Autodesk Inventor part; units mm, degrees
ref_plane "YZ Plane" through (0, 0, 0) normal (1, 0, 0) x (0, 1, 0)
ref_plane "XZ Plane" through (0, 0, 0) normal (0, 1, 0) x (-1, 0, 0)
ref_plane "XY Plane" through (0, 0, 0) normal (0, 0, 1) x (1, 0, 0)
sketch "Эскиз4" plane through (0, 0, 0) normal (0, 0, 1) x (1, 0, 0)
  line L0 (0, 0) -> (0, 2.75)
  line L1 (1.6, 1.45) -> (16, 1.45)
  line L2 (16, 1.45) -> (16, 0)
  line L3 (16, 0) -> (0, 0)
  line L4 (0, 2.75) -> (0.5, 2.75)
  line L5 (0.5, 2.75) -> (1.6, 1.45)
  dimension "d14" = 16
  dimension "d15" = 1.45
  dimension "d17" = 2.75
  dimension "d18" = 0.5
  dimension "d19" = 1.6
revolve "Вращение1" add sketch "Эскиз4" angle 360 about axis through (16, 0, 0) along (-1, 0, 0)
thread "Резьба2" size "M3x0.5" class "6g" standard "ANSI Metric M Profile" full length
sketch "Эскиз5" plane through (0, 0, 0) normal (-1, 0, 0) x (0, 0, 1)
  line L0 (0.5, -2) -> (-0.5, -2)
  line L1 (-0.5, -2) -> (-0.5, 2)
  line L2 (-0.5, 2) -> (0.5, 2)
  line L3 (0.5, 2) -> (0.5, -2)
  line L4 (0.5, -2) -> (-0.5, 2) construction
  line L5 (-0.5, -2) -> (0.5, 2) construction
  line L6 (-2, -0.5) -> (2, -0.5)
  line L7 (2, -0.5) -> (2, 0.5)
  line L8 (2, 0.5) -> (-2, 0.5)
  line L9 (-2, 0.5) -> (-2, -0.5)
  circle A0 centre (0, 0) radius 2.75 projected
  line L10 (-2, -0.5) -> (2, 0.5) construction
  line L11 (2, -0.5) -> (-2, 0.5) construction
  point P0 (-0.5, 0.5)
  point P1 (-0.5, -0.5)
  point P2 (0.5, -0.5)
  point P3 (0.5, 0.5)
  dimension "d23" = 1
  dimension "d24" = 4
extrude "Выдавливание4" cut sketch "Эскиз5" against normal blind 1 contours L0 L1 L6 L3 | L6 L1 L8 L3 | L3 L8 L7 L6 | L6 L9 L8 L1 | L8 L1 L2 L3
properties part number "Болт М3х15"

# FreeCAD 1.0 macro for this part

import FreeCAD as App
import Part
import Sketcher

doc = App.newDocument("Part")
body = doc.addObject("PartDesign::Body", "Body")

# Sketch on XY plane
sketch1 = body.newObject("Sketcher::SketchObject", "Sketch")
sketch1.AttachmentSupport = (doc.getObject("XY_Plane"), [""])
sketch1.MapMode = "FlatFace"
sketch1.addGeometry([
    Part.LineSegment(App.Vector(0, 2.8, 0), App.Vector(0, 0, 0)),  # 0
    Part.LineSegment(App.Vector(0, 0, 0), App.Vector(16, 0, 0)),  # 1
    Part.LineSegment(App.Vector(16, 0, 0), App.Vector(16, 1.4, 0)),  # 2
    Part.LineSegment(App.Vector(16, 1.4, 0), App.Vector(1.6, 1.4, 0)),  # 3
    Part.LineSegment(App.Vector(1.6, 1.4, 0), App.Vector(0.5, 2.8, 0)),  # 4
    Part.LineSegment(App.Vector(0.5, 2.8, 0), App.Vector(0, 2.8, 0)),  # 5
], False)
sketch1.addConstraint([
    Sketcher.Constraint("Coincident", 0, 2, 1, 1),
    Sketcher.Constraint("Coincident", 1, 2, 2, 1),
    Sketcher.Constraint("Coincident", 2, 2, 3, 1),
    Sketcher.Constraint("Coincident", 3, 2, 4, 1),
    Sketcher.Constraint("Coincident", 4, 2, 5, 1),
    Sketcher.Constraint("Coincident", 5, 2, 0, 1),
    Sketcher.Constraint("Vertical", 0),
    Sketcher.Constraint("Horizontal", 1),
    Sketcher.Constraint("Vertical", 2),
    Sketcher.Constraint("Horizontal", 3),
    Sketcher.Constraint("Horizontal", 5),
    Sketcher.Constraint("Coincident", 0, 2, -1, 1),
    Sketcher.Constraint("DistanceX", 1, 1, 1, 2, 16.0),
    Sketcher.Constraint("DistanceX", 5, 2, 5, 1, 0.5),
    Sketcher.Constraint("DistanceY", 0, 2, 0, 1, 2.75),
    Sketcher.Constraint("DistanceY", 2, 1, 2, 2, 1.45),
    Sketcher.Constraint("DistanceX", -1, 1, 3, 2, 1.6),
])
revolution = body.newObject("PartDesign::Revolution", "Revolution")
revolution.Profile = sketch1
revolution.ReferenceAxis = (sketch1, ["H_Axis"])
revolution.Angle = 360

# Sketch on YZ plane
sketch2 = body.newObject("Sketcher::SketchObject", "Sketch001")
sketch2.AttachmentSupport = (doc.getObject("YZ_Plane"), [""])
sketch2.MapMode = "FlatFace"
sketch2.addGeometry([
    Part.LineSegment(App.Vector(-2, -0.5, 0), App.Vector(-2, 0.5, 0)),  # 0
    Part.LineSegment(App.Vector(-2, 0.5, 0), App.Vector(-0.5, 0.5, 0)),  # 1
    Part.LineSegment(App.Vector(-0.5, 0.5, 0), App.Vector(-0.5, 2, 0)),  # 2
    Part.LineSegment(App.Vector(-0.5, 2, 0), App.Vector(0.5, 2, 0)),  # 3
    Part.LineSegment(App.Vector(0.5, 2, 0), App.Vector(0.5, 0.5, 0)),  # 4
    Part.LineSegment(App.Vector(0.5, 0.5, 0), App.Vector(2, 0.5, 0)),  # 5
    Part.LineSegment(App.Vector(2, 0.5, 0), App.Vector(2, -0.5, 0)),  # 6
    Part.LineSegment(App.Vector(2, -0.5, 0), App.Vector(0.5, -0.5, 0)),  # 7
    Part.LineSegment(App.Vector(0.5, -0.5, 0), App.Vector(0.5, -2, 0)),  # 8
    Part.LineSegment(App.Vector(0.5, -2, 0), App.Vector(-0.5, -2, 0)),  # 9
    Part.LineSegment(App.Vector(-0.5, -2, 0), App.Vector(-0.5, -0.5, 0)),  # 10
    Part.LineSegment(App.Vector(-0.5, -0.5, 0), App.Vector(-2, -0.5, 0)),  # 11
], False)
sketch2.addConstraint([
    Sketcher.Constraint("Coincident", 0, 2, 1, 1),
    Sketcher.Constraint("Coincident", 1, 2, 2, 1),
    Sketcher.Constraint("Coincident", 2, 2, 3, 1),
    Sketcher.Constraint("Coincident", 3, 2, 4, 1),
    Sketcher.Constraint("Coincident", 4, 2, 5, 1),
    Sketcher.Constraint("Coincident", 5, 2, 6, 1),
    Sketcher.Constraint("Coincident", 6, 2, 7, 1),
    Sketcher.Constraint("Coincident", 7, 2, 8, 1),
    Sketcher.Constraint("Coincident", 8, 2, 9, 1),
    Sketcher.Constraint("Coincident", 9, 2, 10, 1),
    Sketcher.Constraint("Coincident", 10, 2, 11, 1),
    Sketcher.Constraint("Coincident", 11, 2, 0, 1),
    Sketcher.Constraint("Vertical", 0),
    Sketcher.Constraint("Horizontal", 1),
    Sketcher.Constraint("Vertical", 2),
    Sketcher.Constraint("Horizontal", 3),
    Sketcher.Constraint("Vertical", 4),
    Sketcher.Constraint("Horizontal", 5),
    Sketcher.Constraint("Vertical", 6),
    Sketcher.Constraint("Horizontal", 7),
    Sketcher.Constraint("Vertical", 8),
    Sketcher.Constraint("Horizontal", 9),
    Sketcher.Constraint("Vertical", 10),
    Sketcher.Constraint("Horizontal", 11),
    Sketcher.Constraint("Symmetric", 0, 2, 6, 2, -1, 1),
    Sketcher.Constraint("Symmetric", 2, 2, 8, 2, -1, 1),
    Sketcher.Constraint("Symmetric", 4, 2, 10, 2, -1, 1),
    Sketcher.Constraint("Symmetric", 1, 2, 4, 2, -2),
    Sketcher.Constraint("Equal", 9, 0),
    Sketcher.Constraint("Equal", 11, 2),
    Sketcher.Constraint("DistanceX", 3, 1, 3, 2, 1.0),
    Sketcher.Constraint("DistanceX", 0, 2, 5, 2, 4.0),
])
pocket1 = body.newObject("PartDesign::Pocket", "Pocket")
pocket1.Profile = sketch2
pocket1.Length = 1
pocket1.Reversed = True

doc.recompute()
